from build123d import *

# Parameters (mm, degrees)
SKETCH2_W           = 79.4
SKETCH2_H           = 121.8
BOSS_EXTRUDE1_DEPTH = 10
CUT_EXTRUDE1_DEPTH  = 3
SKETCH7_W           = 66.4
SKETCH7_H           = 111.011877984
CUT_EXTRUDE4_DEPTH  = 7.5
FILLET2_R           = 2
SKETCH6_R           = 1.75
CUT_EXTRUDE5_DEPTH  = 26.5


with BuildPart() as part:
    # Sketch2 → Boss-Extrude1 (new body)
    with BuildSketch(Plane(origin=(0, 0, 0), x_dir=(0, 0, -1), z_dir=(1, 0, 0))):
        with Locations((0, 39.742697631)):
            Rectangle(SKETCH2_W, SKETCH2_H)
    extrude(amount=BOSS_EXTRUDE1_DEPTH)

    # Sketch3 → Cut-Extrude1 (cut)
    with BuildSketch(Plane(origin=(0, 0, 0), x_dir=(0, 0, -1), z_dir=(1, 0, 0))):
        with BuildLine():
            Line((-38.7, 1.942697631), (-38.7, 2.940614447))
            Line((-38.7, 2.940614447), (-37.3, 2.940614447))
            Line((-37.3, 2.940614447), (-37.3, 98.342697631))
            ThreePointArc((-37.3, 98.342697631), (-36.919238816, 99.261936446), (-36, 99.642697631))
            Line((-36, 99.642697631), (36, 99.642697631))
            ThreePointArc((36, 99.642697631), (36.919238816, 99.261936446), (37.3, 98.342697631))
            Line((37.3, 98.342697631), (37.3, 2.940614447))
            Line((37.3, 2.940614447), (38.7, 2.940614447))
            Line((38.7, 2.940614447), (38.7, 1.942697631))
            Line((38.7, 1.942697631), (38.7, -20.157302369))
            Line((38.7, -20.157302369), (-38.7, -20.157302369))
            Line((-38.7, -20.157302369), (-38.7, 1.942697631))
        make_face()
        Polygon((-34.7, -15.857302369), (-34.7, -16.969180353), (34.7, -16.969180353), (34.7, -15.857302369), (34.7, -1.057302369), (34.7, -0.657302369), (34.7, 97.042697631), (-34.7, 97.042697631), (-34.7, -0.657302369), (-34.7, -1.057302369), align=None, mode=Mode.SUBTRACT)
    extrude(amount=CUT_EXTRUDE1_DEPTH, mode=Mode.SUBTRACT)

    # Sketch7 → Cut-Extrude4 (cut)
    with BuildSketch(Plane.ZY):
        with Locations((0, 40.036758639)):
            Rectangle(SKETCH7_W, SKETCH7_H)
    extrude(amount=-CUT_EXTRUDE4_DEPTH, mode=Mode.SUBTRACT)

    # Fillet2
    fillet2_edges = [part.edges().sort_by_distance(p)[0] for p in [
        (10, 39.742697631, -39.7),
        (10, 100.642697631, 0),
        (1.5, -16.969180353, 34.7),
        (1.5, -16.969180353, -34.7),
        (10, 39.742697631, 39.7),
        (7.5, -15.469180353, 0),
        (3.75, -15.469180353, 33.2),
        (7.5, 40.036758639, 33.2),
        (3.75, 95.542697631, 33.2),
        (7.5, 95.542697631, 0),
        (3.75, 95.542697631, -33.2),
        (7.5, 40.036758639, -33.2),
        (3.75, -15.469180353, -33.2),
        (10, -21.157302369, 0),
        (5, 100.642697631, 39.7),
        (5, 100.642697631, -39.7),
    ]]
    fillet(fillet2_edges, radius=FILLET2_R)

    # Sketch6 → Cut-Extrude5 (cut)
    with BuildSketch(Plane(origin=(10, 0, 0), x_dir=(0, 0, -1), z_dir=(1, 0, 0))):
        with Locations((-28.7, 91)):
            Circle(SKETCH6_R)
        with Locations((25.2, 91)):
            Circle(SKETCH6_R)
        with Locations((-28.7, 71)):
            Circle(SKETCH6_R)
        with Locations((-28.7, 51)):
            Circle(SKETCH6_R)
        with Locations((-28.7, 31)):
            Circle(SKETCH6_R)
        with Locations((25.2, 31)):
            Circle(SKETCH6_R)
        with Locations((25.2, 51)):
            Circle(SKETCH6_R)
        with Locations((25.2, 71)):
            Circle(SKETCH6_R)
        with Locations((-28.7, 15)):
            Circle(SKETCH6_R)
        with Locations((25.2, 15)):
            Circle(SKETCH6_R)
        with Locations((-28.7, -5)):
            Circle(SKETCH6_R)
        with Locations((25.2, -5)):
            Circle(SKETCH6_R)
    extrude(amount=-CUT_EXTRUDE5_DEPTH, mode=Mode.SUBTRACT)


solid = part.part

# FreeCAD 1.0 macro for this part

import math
import FreeCAD as App
import Part
import Sketcher
from FreeCAD import Vector
Q = App.Units.Quantity


def edges_at(feature, points):
    """Names of the edges that pass closest to the given points."""
    edges = feature.Shape.Edges
    near = lambda p: min(range(len(edges)), key=lambda i: edges[i].distToShape(Part.Vertex(*p))[0])
    return sorted({f"Edge{near(p) + 1}" for p in points})

doc = App.newDocument("Part")
body = doc.addObject("PartDesign::Body", "Body")

# Sketch on YZ plane
sketch1 = body.newObject("Sketcher::SketchObject", "Sketch")
sketch1.AttachmentSupport = (doc.getObject("YZ_Plane"), [""])
sketch1.MapMode = "FlatFace"
sketch1.addGeometry([
    Part.LineSegment(Vector(100.642698, 39.7, 0), Vector(-21.157302, 39.7, 0)),
    Part.LineSegment(Vector(-21.157302, 39.7, 0), Vector(-21.157302, -39.7, 0)),
    Part.LineSegment(Vector(-21.157302, -39.7, 0), Vector(100.642698, -39.7, 0)),
    Part.LineSegment(Vector(100.642698, -39.7, 0), Vector(100.642698, 39.7, 0)),
], False)
sketch1.addConstraint([
    Sketcher.Constraint("Coincident", 0, 2, 1, 1),
    Sketcher.Constraint("Coincident", 1, 2, 2, 1),
    Sketcher.Constraint("Coincident", 2, 2, 3, 1),
    Sketcher.Constraint("Coincident", 3, 2, 0, 1),
    Sketcher.Constraint("Horizontal", 0),
    Sketcher.Constraint("Vertical", 1),
    Sketcher.Constraint("Horizontal", 2),
    Sketcher.Constraint("Vertical", 3),
    Sketcher.Constraint("DistanceX", 0, 2, 0, 1, Q("121.8 mm")),
    Sketcher.Constraint("DistanceY", 1, 2, 1, 1, Q("79.4 mm")),
    Sketcher.Constraint("DistanceY", -1, 1, 0, 2, Q("39.7 mm")),
    Sketcher.Constraint("DistanceX", 0, 2, -1, 1, Q("21.157302 mm")),
])
pad1 = body.newObject("PartDesign::Pad", "Pad")
pad1.Profile = sketch1
pad1.Length = 10

# Sketch on YZ plane
sketch2 = body.newObject("Sketcher::SketchObject", "Sketch001")
sketch2.AttachmentSupport = (doc.getObject("YZ_Plane"), [""])
sketch2.MapMode = "FlatFace"
sketch2.addGeometry([
    Part.LineSegment(Vector(2.940614, 37.3, 0), Vector(2.940614, 38.7, 0)),  # 0
    Part.LineSegment(Vector(2.940614, 38.7, 0), Vector(-20.157302, 38.7, 0)),  # 1
    Part.LineSegment(Vector(-20.157302, 38.7, 0), Vector(-20.157302, -38.7, 0)),  # 2
    Part.LineSegment(Vector(-20.157302, -38.7, 0), Vector(2.940614, -38.7, 0)),  # 3
    Part.LineSegment(Vector(2.940614, -38.7, 0), Vector(2.940614, -37.3, 0)),  # 4
    Part.LineSegment(Vector(2.940614, -37.3, 0), Vector(98.342698, -37.3, 0)),  # 5
    Part.ArcOfCircle(Part.Circle(Vector(98.342698, -36, 0), Vector(0, 0, 1), 1.3), math.radians(-90), math.radians(0)),  # 6
    Part.LineSegment(Vector(99.642698, -36, 0), Vector(99.642698, 36, 0)),  # 7
    Part.ArcOfCircle(Part.Circle(Vector(98.342698, 36, 0), Vector(0, 0, 1), 1.3), math.radians(0), math.radians(90)),  # 8
    Part.LineSegment(Vector(98.342698, 37.3, 0), Vector(2.940614, 37.3, 0)),  # 9
    Part.LineSegment(Vector(97.042698, 34.7, 0), Vector(97.042698, -34.7, 0)),  # 10
    Part.LineSegment(Vector(97.042698, -34.7, 0), Vector(-16.96918, -34.7, 0)),  # 11
    Part.LineSegment(Vector(-16.96918, -34.7, 0), Vector(-16.96918, 34.7, 0)),  # 12
    Part.LineSegment(Vector(-16.96918, 34.7, 0), Vector(97.042698, 34.7, 0)),  # 13
], False)
sketch2.addConstraint([
    Sketcher.Constraint("Coincident", 0, 2, 1, 1),
    Sketcher.Constraint("Coincident", 1, 2, 2, 1),
    Sketcher.Constraint("Coincident", 2, 2, 3, 1),
    Sketcher.Constraint("Coincident", 3, 2, 4, 1),
    Sketcher.Constraint("Coincident", 4, 2, 5, 1),
    Sketcher.Constraint("Tangent", 5, 2, 6, 1),
    Sketcher.Constraint("Tangent", 6, 2, 7, 1),
    Sketcher.Constraint("Tangent", 7, 2, 8, 1),
    Sketcher.Constraint("Tangent", 8, 2, 9, 1),
    Sketcher.Constraint("Coincident", 9, 2, 0, 1),
    Sketcher.Constraint("Coincident", 10, 2, 11, 1),
    Sketcher.Constraint("Coincident", 11, 2, 12, 1),
    Sketcher.Constraint("Coincident", 12, 2, 13, 1),
    Sketcher.Constraint("Coincident", 13, 2, 10, 1),
    Sketcher.Constraint("Vertical", 0),
    Sketcher.Constraint("Horizontal", 1),
    Sketcher.Constraint("Vertical", 2),
    Sketcher.Constraint("Horizontal", 3),
    Sketcher.Constraint("Vertical", 4),
    Sketcher.Constraint("Horizontal", 5),
    Sketcher.Constraint("Vertical", 7),
    Sketcher.Constraint("Horizontal", 9),
    Sketcher.Constraint("Vertical", 10),
    Sketcher.Constraint("Horizontal", 11),
    Sketcher.Constraint("Vertical", 12),
    Sketcher.Constraint("Horizontal", 13),
    Sketcher.Constraint("Equal", 6, 8),
    Sketcher.Constraint("Symmetric", 0, 2, 3, 2, -1),
    Sketcher.Constraint("Equal", 0, 4),
    Sketcher.Constraint("Radius", 6, Q("1.3 mm")),
    Sketcher.Constraint("DistanceY", 7, 1, 7, 2, Q("72 mm")),
    Sketcher.Constraint("DistanceY", 0, 1, 0, 2, Q("1.4 mm")),
    Sketcher.Constraint("DistanceY", 10, 2, 10, 1, Q("69.4 mm")),
    Sketcher.Constraint("DistanceY", 2, 2, 11, 2, Q("4 mm")),
    Sketcher.Constraint("DistanceX", 1, 2, 8, 3, Q("118.5 mm")),
    Sketcher.Constraint("DistanceX", 10, 2, 6, 3, Q("1.3 mm")),
    Sketcher.Constraint("DistanceX", 1, 2, 1, 1, Q("23.097917 mm")),
    Sketcher.Constraint("DistanceX", 11, 2, 11, 1, Q("114.011878 mm")),
    Sketcher.Constraint("DistanceX", 11, 2, -1, 1, Q("16.96918 mm")),
])
pocket1 = body.newObject("PartDesign::Pocket", "Pocket")
pocket1.Profile = sketch2
pocket1.Length = 3
pocket1.Reversed = True

# Sketch on YZ plane
sketch3 = body.newObject("Sketcher::SketchObject", "Sketch002")
sketch3.AttachmentSupport = (doc.getObject("YZ_Plane"), [""])
sketch3.MapMode = "FlatFace"
sketch3.addGeometry([
    Part.LineSegment(Vector(95.542698, -33.2, 0), Vector(-15.46918, -33.2, 0)),
    Part.LineSegment(Vector(-15.46918, -33.2, 0), Vector(-15.46918, 33.2, 0)),
    Part.LineSegment(Vector(-15.46918, 33.2, 0), Vector(95.542698, 33.2, 0)),
    Part.LineSegment(Vector(95.542698, 33.2, 0), Vector(95.542698, -33.2, 0)),
], False)
sketch3.addConstraint([
    Sketcher.Constraint("Coincident", 0, 2, 1, 1),
    Sketcher.Constraint("Coincident", 1, 2, 2, 1),
    Sketcher.Constraint("Coincident", 2, 2, 3, 1),
    Sketcher.Constraint("Coincident", 3, 2, 0, 1),
    Sketcher.Constraint("Horizontal", 0),
    Sketcher.Constraint("Vertical", 1),
    Sketcher.Constraint("Horizontal", 2),
    Sketcher.Constraint("Vertical", 3),
    Sketcher.Constraint("DistanceY", 1, 1, 1, 2, Q("66.4 mm")),
    Sketcher.Constraint("DistanceY", 0, 2, -1, 1, Q("33.2 mm")),
    Sketcher.Constraint("DistanceX", 0, 2, 0, 1, Q("111.011878 mm")),
    Sketcher.Constraint("DistanceX", 0, 2, -1, 1, Q("15.46918 mm")),
])
pocket2 = body.newObject("PartDesign::Pocket", "Pocket001")
pocket2.Profile = sketch3
pocket2.Length = 7.5
pocket2.Reversed = True
doc.recompute()

fillet = body.newObject("PartDesign::Fillet", "Fillet")
fillet.Base = (pocket2, edges_at(pocket2, [
    (10, 39.743, -39.7),
    (10, 100.643, 0),
    (1.5, -16.969, 34.7),
    (1.5, -16.969, -34.7),
    (10, 39.743, 39.7),
    (7.5, -15.469, 0),
    (3.75, -15.469, 33.2),
    (7.5, 40.037, 33.2),
    (3.75, 95.543, 33.2),
    (7.5, 95.543, 0),
    (3.75, 95.543, -33.2),
    (7.5, 40.037, -33.2),
    (3.75, -15.469, -33.2),
    (10, -21.157, 0),
    (5, 100.643, 39.7),
    (5, 100.643, -39.7),
]))
fillet.Radius = 2

# Sketch on YZ plane
sketch4 = body.newObject("Sketcher::SketchObject", "Sketch003")
sketch4.AttachmentSupport = (doc.getObject("YZ_Plane"), [""])
sketch4.MapMode = "FlatFace"
sketch4.AttachmentOffset = App.Placement(Vector(0, 0, 10), App.Rotation())
sketch4.addGeometry([
    Part.Circle(Vector(91, 28.7, 0), Vector(0, 0, 1), 1.75),  # 0
    Part.Circle(Vector(91, -25.2, 0), Vector(0, 0, 1), 1.75),  # 1
    Part.Circle(Vector(71, 28.7, 0), Vector(0, 0, 1), 1.75),  # 2
    Part.Circle(Vector(51, 28.7, 0), Vector(0, 0, 1), 1.75),  # 3
    Part.Circle(Vector(31, 28.7, 0), Vector(0, 0, 1), 1.75),  # 4
    Part.Circle(Vector(31, -25.2, 0), Vector(0, 0, 1), 1.75),  # 5
    Part.Circle(Vector(51, -25.2, 0), Vector(0, 0, 1), 1.75),  # 6
    Part.Circle(Vector(71, -25.2, 0), Vector(0, 0, 1), 1.75),  # 7
    Part.Circle(Vector(15, 28.7, 0), Vector(0, 0, 1), 1.75),  # 8
    Part.Circle(Vector(15, -25.2, 0), Vector(0, 0, 1), 1.75),  # 9
    Part.Circle(Vector(-5, 28.7, 0), Vector(0, 0, 1), 1.75),  # 10
    Part.Circle(Vector(-5, -25.2, 0), Vector(0, 0, 1), 1.75),  # 11
], False)
sketch4.addConstraint([
    Sketcher.Constraint("Equal", 0, 1),
    Sketcher.Constraint("Equal", 1, 2),
    Sketcher.Constraint("Equal", 2, 3),
    Sketcher.Constraint("Equal", 3, 4),
    Sketcher.Constraint("Equal", 4, 5),
    Sketcher.Constraint("Equal", 5, 6),
    Sketcher.Constraint("Equal", 6, 7),
    Sketcher.Constraint("Equal", 7, 8),
    Sketcher.Constraint("Equal", 8, 9),
    Sketcher.Constraint("Equal", 9, 10),
    Sketcher.Constraint("Equal", 10, 11),
    Sketcher.Constraint("Horizontal", 0, 3, 2, 3),
    Sketcher.Constraint("Horizontal", 2, 3, 3, 3),
    Sketcher.Constraint("Horizontal", 3, 3, 4, 3),
    Sketcher.Constraint("Horizontal", 1, 3, 5, 3),
    Sketcher.Constraint("Horizontal", 5, 3, 6, 3),
    Sketcher.Constraint("Horizontal", 6, 3, 7, 3),
    Sketcher.Constraint("Horizontal", 4, 3, 8, 3),
    Sketcher.Constraint("Horizontal", 7, 3, 9, 3),
    Sketcher.Constraint("Horizontal", 8, 3, 10, 3),
    Sketcher.Constraint("Horizontal", 9, 3, 11, 3),
    Sketcher.Constraint("Vertical", 0, 3, 1, 3),
    Sketcher.Constraint("Vertical", 4, 3, 5, 3),
    Sketcher.Constraint("Vertical", 3, 3, 6, 3),
    Sketcher.Constraint("Vertical", 2, 3, 7, 3),
    Sketcher.Constraint("Vertical", 8, 3, 9, 3),
    Sketcher.Constraint("Vertical", 10, 3, 11, 3),
    Sketcher.Constraint("Diameter", 0, Q("3.5 mm")),
    Sketcher.Constraint("DistanceX", -1, 1, 0, 3, Q("91 mm")),
    Sketcher.Constraint("DistanceX", -1, 1, 2, 3, Q("71 mm")),
    Sketcher.Constraint("DistanceX", -1, 1, 3, 3, Q("51 mm")),
    Sketcher.Constraint("DistanceX", -1, 1, 4, 3, Q("31 mm")),
    Sketcher.Constraint("DistanceX", -1, 1, 8, 3, Q("15 mm")),
    Sketcher.Constraint("DistanceX", 10, 3, -1, 1, Q("5 mm")),
    Sketcher.Constraint("DistanceY", -1, 1, 0, 3, Q("28.7 mm")),
    Sketcher.Constraint("DistanceY", 1, 3, -1, 1, Q("25.2 mm")),
])
pocket3 = body.newObject("PartDesign::Pocket", "Pocket002")
pocket3.Profile = sketch4
pocket3.Length = 26.5

doc.recompute()
